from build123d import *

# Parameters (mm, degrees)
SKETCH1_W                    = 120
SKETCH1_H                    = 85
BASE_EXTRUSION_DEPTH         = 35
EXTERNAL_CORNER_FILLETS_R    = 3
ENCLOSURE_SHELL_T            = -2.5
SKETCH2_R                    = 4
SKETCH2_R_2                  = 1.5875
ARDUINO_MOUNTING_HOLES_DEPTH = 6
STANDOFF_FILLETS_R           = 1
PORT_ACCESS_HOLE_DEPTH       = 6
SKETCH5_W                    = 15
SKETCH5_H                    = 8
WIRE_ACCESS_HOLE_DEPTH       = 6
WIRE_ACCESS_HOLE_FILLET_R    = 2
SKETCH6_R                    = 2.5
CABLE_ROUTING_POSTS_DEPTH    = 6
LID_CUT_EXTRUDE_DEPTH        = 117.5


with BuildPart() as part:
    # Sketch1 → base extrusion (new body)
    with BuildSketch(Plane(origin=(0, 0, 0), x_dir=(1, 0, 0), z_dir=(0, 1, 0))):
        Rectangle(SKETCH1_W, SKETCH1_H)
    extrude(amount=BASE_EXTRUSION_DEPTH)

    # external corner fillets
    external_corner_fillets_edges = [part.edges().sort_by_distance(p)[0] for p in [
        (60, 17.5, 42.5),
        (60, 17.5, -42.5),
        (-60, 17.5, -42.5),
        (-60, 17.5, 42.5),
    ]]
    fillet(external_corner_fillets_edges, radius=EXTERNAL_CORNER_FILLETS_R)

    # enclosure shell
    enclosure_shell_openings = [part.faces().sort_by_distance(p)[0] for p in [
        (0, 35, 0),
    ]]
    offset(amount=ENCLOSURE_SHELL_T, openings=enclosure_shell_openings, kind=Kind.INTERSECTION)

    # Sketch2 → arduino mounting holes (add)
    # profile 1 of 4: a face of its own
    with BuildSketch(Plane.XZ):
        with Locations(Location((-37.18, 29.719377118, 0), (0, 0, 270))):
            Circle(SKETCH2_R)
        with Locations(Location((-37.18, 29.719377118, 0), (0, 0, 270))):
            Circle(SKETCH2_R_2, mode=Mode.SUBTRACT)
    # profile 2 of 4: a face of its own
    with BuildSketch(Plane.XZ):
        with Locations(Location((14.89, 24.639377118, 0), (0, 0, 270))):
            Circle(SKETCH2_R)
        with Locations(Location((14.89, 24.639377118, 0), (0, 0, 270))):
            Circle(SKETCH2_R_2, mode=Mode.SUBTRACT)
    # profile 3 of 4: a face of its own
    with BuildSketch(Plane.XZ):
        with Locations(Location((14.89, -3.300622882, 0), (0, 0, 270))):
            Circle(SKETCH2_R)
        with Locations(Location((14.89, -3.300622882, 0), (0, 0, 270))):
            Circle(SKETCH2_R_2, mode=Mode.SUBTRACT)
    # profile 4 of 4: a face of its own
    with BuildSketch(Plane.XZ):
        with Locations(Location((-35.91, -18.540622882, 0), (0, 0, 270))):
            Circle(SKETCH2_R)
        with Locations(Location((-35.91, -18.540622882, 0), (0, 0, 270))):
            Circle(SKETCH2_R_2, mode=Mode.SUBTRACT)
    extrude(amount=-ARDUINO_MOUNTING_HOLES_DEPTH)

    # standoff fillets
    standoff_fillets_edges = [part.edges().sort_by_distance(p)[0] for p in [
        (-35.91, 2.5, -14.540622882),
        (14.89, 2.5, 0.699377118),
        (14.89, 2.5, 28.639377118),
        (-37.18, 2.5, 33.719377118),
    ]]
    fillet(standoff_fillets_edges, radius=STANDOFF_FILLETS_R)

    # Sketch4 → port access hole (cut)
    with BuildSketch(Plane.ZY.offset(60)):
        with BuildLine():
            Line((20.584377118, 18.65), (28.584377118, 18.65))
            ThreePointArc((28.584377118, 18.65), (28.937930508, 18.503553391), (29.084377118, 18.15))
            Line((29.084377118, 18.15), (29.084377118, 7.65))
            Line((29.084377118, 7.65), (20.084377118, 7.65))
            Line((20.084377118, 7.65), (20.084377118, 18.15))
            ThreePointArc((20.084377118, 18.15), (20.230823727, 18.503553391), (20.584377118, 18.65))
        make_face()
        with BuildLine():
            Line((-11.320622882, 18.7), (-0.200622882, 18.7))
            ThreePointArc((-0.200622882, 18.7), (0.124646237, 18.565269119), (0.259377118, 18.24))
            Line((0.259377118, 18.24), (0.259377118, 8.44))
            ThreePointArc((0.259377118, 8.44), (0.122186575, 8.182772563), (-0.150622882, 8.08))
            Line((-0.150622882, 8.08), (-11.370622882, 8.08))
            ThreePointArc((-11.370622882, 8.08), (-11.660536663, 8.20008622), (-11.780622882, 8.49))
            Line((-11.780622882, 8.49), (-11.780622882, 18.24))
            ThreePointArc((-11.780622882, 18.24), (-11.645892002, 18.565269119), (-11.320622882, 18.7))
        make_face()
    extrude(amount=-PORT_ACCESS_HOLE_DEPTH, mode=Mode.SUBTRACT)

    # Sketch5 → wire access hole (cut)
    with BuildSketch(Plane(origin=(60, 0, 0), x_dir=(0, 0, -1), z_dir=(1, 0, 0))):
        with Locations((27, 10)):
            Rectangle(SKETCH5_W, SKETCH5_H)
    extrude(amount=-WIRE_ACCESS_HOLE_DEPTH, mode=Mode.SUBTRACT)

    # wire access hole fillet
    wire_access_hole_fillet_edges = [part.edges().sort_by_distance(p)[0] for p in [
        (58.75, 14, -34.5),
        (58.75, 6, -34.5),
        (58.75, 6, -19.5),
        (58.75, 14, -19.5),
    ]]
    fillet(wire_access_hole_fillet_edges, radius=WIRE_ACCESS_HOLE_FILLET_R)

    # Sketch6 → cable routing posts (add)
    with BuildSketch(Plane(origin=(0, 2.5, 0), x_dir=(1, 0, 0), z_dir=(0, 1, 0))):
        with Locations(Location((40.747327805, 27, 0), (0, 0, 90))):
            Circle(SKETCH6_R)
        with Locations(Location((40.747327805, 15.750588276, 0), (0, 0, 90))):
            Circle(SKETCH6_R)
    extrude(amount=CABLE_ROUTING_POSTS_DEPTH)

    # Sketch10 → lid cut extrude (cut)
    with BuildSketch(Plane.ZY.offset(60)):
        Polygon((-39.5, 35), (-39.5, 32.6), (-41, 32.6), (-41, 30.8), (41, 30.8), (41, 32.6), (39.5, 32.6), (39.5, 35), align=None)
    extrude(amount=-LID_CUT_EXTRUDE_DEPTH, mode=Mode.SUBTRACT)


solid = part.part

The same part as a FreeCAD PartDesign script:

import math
import FreeCAD as App
import Part
import Sketcher
Q = App.Units.Quantity


def edges_at(feature, points):
    """Names of the edges that pass closest to the given points."""
    edges = feature.Shape.Edges
    near = lambda p: min(range(len(edges)), key=lambda i: edges[i].distToShape(Part.Vertex(*p))[0])
    return sorted({f"Edge{near(p) + 1}" for p in points})


def faces_at(feature, points):
    """Names of the faces that lie closest to the given points."""
    faces = feature.Shape.Faces
    near = lambda p: min(range(len(faces)), key=lambda i: faces[i].distToShape(Part.Vertex(*p))[0])
    return sorted({f"Face{near(p) + 1}" for p in points})


def add_polygon(sketch, points):
    """Adds a closed chain of lines whose ends are joined by coincident constraints."""
    first, n = sketch.GeometryCount, len(points)
    for a, b in zip(points, points[1:] + points[:1]):
        sketch.addGeometry(Part.LineSegment(App.Vector(*a, 0), App.Vector(*b, 0)), False)
    for i in range(n):
        sketch.addConstraint(Sketcher.Constraint("Coincident", first + i, 2, first + (i + 1) % n, 1))

doc = App.newDocument("Part")
body = doc.addObject("PartDesign::Body", "Body")

sketch1 = body.newObject("Sketcher::SketchObject", "Sketch")
sketch1.AttachmentSupport = (doc.getObject("XZ_Plane"), [""])
sketch1.MapMode = "FlatFace"
add_polygon(sketch1, [(-60, -42), (-60, 42), (60, 42), (60, -42)])
sketch1.addConstraint([
    Sketcher.Constraint("Vertical", 0),
    Sketcher.Constraint("Horizontal", 1),
    Sketcher.Constraint("Vertical", 2),
    Sketcher.Constraint("Horizontal", 3),
    Sketcher.Constraint("Symmetric", 0, 2, 2, 2, -1, 1),
    Sketcher.Constraint("DistanceX", 1, 1, 1, 2, Q("120 mm")),
    Sketcher.Constraint("DistanceY", 0, 1, 0, 2, Q("85 mm")),
])
pad1 = body.newObject("PartDesign::Pad", "Pad")
pad1.Profile = sketch1
pad1.Length = 35
pad1.Reversed = True
doc.recompute()

fillet = body.newObject("PartDesign::Fillet", "Fillet")
fillet.Base = (pad1, edges_at(pad1, [
    (60, 17.5, 42.5),
    (60, 17.5, -42.5),
    (-60, 17.5, -42.5),
    (-60, 17.5, 42.5),
]))
fillet.Radius = 3
doc.recompute()

thickness = body.newObject("PartDesign::Thickness", "Thickness")
thickness.Base = (fillet, faces_at(fillet, [(0, 35, 0)]))
thickness.Value = 2.5
thickness.Reversed = True
thickness.Join = "Intersection"

sketch2 = body.newObject("Sketcher::SketchObject", "Sketch001")
sketch2.AttachmentSupport = (doc.getObject("XZ_Plane"), [""])
sketch2.MapMode = "FlatFace"
sketch2.addGeometry([
    Part.Circle(App.Vector(-37.2, 29.7, 0), App.Vector(0, 0, 1), 4),
    Part.Circle(App.Vector(-37.2, 29.7, 0), App.Vector(0, 0, 1), 1.6),
    Part.Circle(App.Vector(14.9, 24.6, 0), App.Vector(0, 0, 1), 4),
    Part.Circle(App.Vector(14.9, 24.6, 0), App.Vector(0, 0, 1), 1.6),
    Part.Circle(App.Vector(14.9, -3.3, 0), App.Vector(0, 0, 1), 4),
    Part.Circle(App.Vector(14.9, -3.3, 0), App.Vector(0, 0, 1), 1.6),
    Part.Circle(App.Vector(-35.9, -18.5, 0), App.Vector(0, 0, 1), 4),
    Part.Circle(App.Vector(-35.9, -18.5, 0), App.Vector(0, 0, 1), 1.6),
], False)
sketch2.addConstraint([
    Sketcher.Constraint("Coincident", 1, 3, 0, 3),
    Sketcher.Constraint("Coincident", 3, 3, 2, 3),
    Sketcher.Constraint("Coincident", 5, 3, 4, 3),
    Sketcher.Constraint("Coincident", 7, 3, 6, 3),
    Sketcher.Constraint("Equal", 0, 2),
    Sketcher.Constraint("Equal", 1, 3),
    Sketcher.Constraint("Equal", 2, 4),
    Sketcher.Constraint("Equal", 3, 5),
    Sketcher.Constraint("Equal", 4, 6),
    Sketcher.Constraint("Equal", 5, 7),
    Sketcher.Constraint("Vertical", 3, 3, 4, 3),
    Sketcher.Constraint("Diameter", 0, Q("8 mm")),
    Sketcher.Constraint("Diameter", 1, Q("3.175 mm")),
    Sketcher.Constraint("DistanceX", 6, 3, 4, 3, Q("50.8 mm")),
    Sketcher.Constraint("DistanceX", 0, 3, -1, 1, Q("37.18 mm")),
    Sketcher.Constraint("DistanceX", -1, 1, 2, 3, Q("14.89 mm")),
    Sketcher.Constraint("DistanceY", 2, 3, 0, 3, Q("5.08 mm")),
    Sketcher.Constraint("DistanceY", 4, 3, 2, 3, Q("27.94 mm")),
    Sketcher.Constraint("DistanceY", 6, 3, 0, 3, Q("48.26 mm")),
    Sketcher.Constraint("DistanceY", -1, 1, 0, 3, Q("29.719377 mm")),
])
pad2 = body.newObject("PartDesign::Pad", "Pad001")
pad2.Profile = sketch2
pad2.Length = 6
pad2.Reversed = True
doc.recompute()

fillet2 = body.newObject("PartDesign::Fillet", "Fillet001")
fillet2.Base = (pad2, edges_at(pad2, [
    (-35.91, 2.5, -14.541),
    (14.89, 2.5, 0.699),
    (14.89, 2.5, 28.639),
    (-37.18, 2.5, 33.719),
]))
fillet2.Radius = 1

sketch3 = body.newObject("Sketcher::SketchObject", "Sketch002")
sketch3.AttachmentSupport = (doc.getObject("YZ_Plane"), [""])
sketch3.MapMode = "FlatFace"
sketch3.AttachmentOffset = App.Placement(App.Vector(0, 0, -60), App.Rotation())
sketch3.addGeometry([
    Part.LineSegment(App.Vector(18.65, 28.58, 0), App.Vector(18.65, 20.58, 0)),
    Part.ArcOfCircle(Part.Circle(App.Vector(18.15, 20.58, 0), App.Vector(0, 0, 1), 0.5), math.radians(-90), math.radians(0)),
    Part.LineSegment(App.Vector(18.15, 20.08, 0), App.Vector(7.65, 20.08, 0)),
    Part.LineSegment(App.Vector(7.65, 20.08, 0), App.Vector(7.65, 29.08, 0)),
    Part.LineSegment(App.Vector(7.65, 29.08, 0), App.Vector(18.15, 29.08, 0)),
    Part.ArcOfCircle(Part.Circle(App.Vector(18.15, 28.58, 0), App.Vector(0, 0, 1), 0.5), math.radians(0), math.radians(90)),
    Part.LineSegment(App.Vector(18.7, -0.2, 0), App.Vector(18.7, -11.32, 0)),
    Part.ArcOfCircle(Part.Circle(App.Vector(18.24, -11.32, 0), App.Vector(0, 0, 1), 0.46), math.radians(-90), math.radians(0)),
    Part.LineSegment(App.Vector(18.24, -11.78, 0), App.Vector(8.49, -11.78, 0)),
    Part.ArcOfCircle(Part.Circle(App.Vector(8.49, -11.37, 0), App.Vector(0, 0, 1), 0.41), math.radians(180), math.radians(270)),
    Part.LineSegment(App.Vector(8.08, -11.37, 0), App.Vector(8.08, -0.15, 0)),
    Part.ArcOfCircle(Part.Circle(App.Vector(8.49, -0.15, 0), App.Vector(0, 0, 1), 0.41), math.radians(97), math.radians(180)),
    Part.LineSegment(App.Vector(8.44, 0.26, 0), App.Vector(18.24, 0.26, 0)),
    Part.ArcOfCircle(Part.Circle(App.Vector(18.24, -0.2, 0), App.Vector(0, 0, 1), 0.46), math.radians(0), math.radians(90)),
], False)
sketch3.addConstraint([
    Sketcher.Constraint("Tangent", 0, 2, 1, 2),
    Sketcher.Constraint("Tangent", 1, 1, 2, 1),
    Sketcher.Constraint("Coincident", 2, 2, 3, 1),
    Sketcher.Constraint("Coincident", 3, 2, 4, 1),
    Sketcher.Constraint("Tangent", 4, 2, 5, 2),
    Sketcher.Constraint("Tangent", 5, 1, 0, 1),
    Sketcher.Constraint("Tangent", 6, 2, 7, 2),
    Sketcher.Constraint("Tangent", 7, 1, 8, 1),
    Sketcher.Constraint("Tangent", 8, 2, 9, 2),
    Sketcher.Constraint("Tangent", 9, 1, 10, 1),
    Sketcher.Constraint("Tangent", 10, 2, 11, 2),
    Sketcher.Constraint("Coincident", 11, 1, 12, 1),
    Sketcher.Constraint("Tangent", 12, 2, 13, 2),
    Sketcher.Constraint("Tangent", 13, 1, 6, 1),
    Sketcher.Constraint("Vertical", 0),
    Sketcher.Constraint("Horizontal", 2),
    Sketcher.Constraint("Vertical", 3),
    Sketcher.Constraint("Horizontal", 4),
    Sketcher.Constraint("Vertical", 6),
    Sketcher.Constraint("Horizontal", 8),
    Sketcher.Constraint("Vertical", 10),
    Sketcher.Constraint("Horizontal", 12),
    Sketcher.Constraint("Equal", 1, 5),
    Sketcher.Constraint("Equal", 7, 13),
    Sketcher.Constraint("Radius", 1, Q("0.5 mm")),
    Sketcher.Constraint("DistanceY", 0, 2, 0, 1, Q("8 mm")),
    Sketcher.Constraint("Radius", 7, Q("0.46 mm")),
    Sketcher.Constraint("Radius", 9, Q("0.41 mm")),
    Sketcher.Constraint("DistanceX", 2, 2, 2, 1, Q("10.5 mm")),
    Sketcher.Constraint("DistanceX", 12, 1, 12, 2, Q("9.8 mm")),
    Sketcher.Constraint("DistanceX", 8, 2, 8, 1, Q("9.75 mm")),
    Sketcher.Constraint("DistanceY", 6, 2, 6, 1, Q("11.12 mm")),
    Sketcher.Constraint("DistanceY", 10, 1, 10, 2, Q("11.22 mm")),
    Sketcher.Constraint("DistanceX", -1, 1, 6, 2, Q("18.7 mm")),
    Sketcher.Constraint("DistanceX", -1, 1, 1, 3, Q("18.15 mm")),
    Sketcher.Constraint("DistanceY", 7, 3, 1, 3, Q("31.905 mm")),
    Sketcher.Constraint("DistanceY", -1, 1, 1, 3, Q("20.584377 mm")),
])
pocket1 = body.newObject("PartDesign::Pocket", "Pocket")
pocket1.Profile = sketch3
pocket1.Length = 6
pocket1.Reversed = True

sketch4 = body.newObject("Sketcher::SketchObject", "Sketch003")
sketch4.AttachmentSupport = (doc.getObject("YZ_Plane"), [""])
sketch4.MapMode = "FlatFace"
sketch4.AttachmentOffset = App.Placement(App.Vector(0, 0, 60), App.Rotation())
add_polygon(sketch4, [(14, -20), (6, -20), (6, -34), (14, -34)])
sketch4.addConstraint([
    Sketcher.Constraint("Horizontal", 0),
    Sketcher.Constraint("Vertical", 1),
    Sketcher.Constraint("Horizontal", 2),
    Sketcher.Constraint("Vertical", 3),
    Sketcher.Constraint("DistanceX", 0, 2, 0, 1, Q("8 mm")),
    Sketcher.Constraint("DistanceY", 1, 2, 1, 1, Q("15 mm")),
    Sketcher.Constraint("DistanceX", -1, 1, 0, 2, Q("6 mm")),
    Sketcher.Constraint("DistanceY", 0, 2, -1, 1, Q("19.5 mm")),
])
pocket2 = body.newObject("PartDesign::Pocket", "Pocket001")
pocket2.Profile = sketch4
pocket2.Length = 6
doc.recompute()

fillet3 = body.newObject("PartDesign::Fillet", "Fillet002")
fillet3.Base = (pocket2, edges_at(pocket2, [
    (58.75, 14, -34.5),
    (58.75, 6, -34.5),
    (58.75, 6, -19.5),
    (58.75, 14, -19.5),
]))
fillet3.Radius = 2

sketch5 = body.newObject("Sketcher::SketchObject", "Sketch004")
sketch5.AttachmentSupport = (doc.getObject("XZ_Plane"), [""])
sketch5.MapMode = "FlatFace"
sketch5.AttachmentOffset = App.Placement(App.Vector(0, 0, -2.5), App.Rotation())
sketch5.addGeometry([
    Part.Circle(App.Vector(40.7, -27, 0), App.Vector(0, 0, 1), 2.5),
    Part.Circle(App.Vector(40.7, -15.8, 0), App.Vector(0, 0, 1), 2.5),
], False)
sketch5.addConstraint([
    Sketcher.Constraint("Equal", 0, 1),
    Sketcher.Constraint("Vertical", 0, 3, 1, 3),
    Sketcher.Constraint("Diameter", 0, Q("5 mm")),
    Sketcher.Constraint("DistanceY", 0, 3, -1, 1, Q("27 mm")),
    Sketcher.Constraint("DistanceY", 1, 3, -1, 1, Q("15.750588 mm")),
    Sketcher.Constraint("DistanceX", -1, 1, 0, 3, Q("40.747328 mm")),
])
pad3 = body.newObject("PartDesign::Pad", "Pad002")
pad3.Profile = sketch5
pad3.Length = 6
pad3.Reversed = True

sketch6 = body.newObject("Sketcher::SketchObject", "Sketch005")
sketch6.AttachmentSupport = (doc.getObject("YZ_Plane"), [""])
sketch6.MapMode = "FlatFace"
sketch6.AttachmentOffset = App.Placement(App.Vector(0, 0, -60), App.Rotation())
add_polygon(sketch6, [(35, -39.5), (32.6, -39.5), (32.6, -41), (30.8, -41), (30.8, 41), (32.6, 41), (32.6, 39.5), (35, 39.5)])
sketch6.addConstraint([
    Sketcher.Constraint("Horizontal", 0),
    Sketcher.Constraint("Vertical", 1),
    Sketcher.Constraint("Horizontal", 2),
    Sketcher.Constraint("Vertical", 3),
    Sketcher.Constraint("Horizontal", 4),
    Sketcher.Constraint("Vertical", 5),
    Sketcher.Constraint("Horizontal", 6),
    Sketcher.Constraint("Vertical", 7),
    Sketcher.Constraint("Symmetric", 1, 2, 4, 2, -1),
    Sketcher.Constraint("Equal", 1, 5),
    Sketcher.Constraint("DistanceY", 3, 1, 3, 2, Q("82 mm")),
    Sketcher.Constraint("DistanceY", 7, 2, 7, 1, Q("79 mm")),
    Sketcher.Constraint("DistanceX", 0, 2, 0, 1, Q("2.4 mm")),
    Sketcher.Constraint("DistanceX", 2, 2, 2, 1, Q("1.8 mm")),
    Sketcher.Constraint("DistanceX", -1, 1, 6, 2, Q("35 mm")),
])
pocket3 = body.newObject("PartDesign::Pocket", "Pocket002")
pocket3.Profile = sketch6
pocket3.Length = 117.5
pocket3.Reversed = True

doc.recompute()
